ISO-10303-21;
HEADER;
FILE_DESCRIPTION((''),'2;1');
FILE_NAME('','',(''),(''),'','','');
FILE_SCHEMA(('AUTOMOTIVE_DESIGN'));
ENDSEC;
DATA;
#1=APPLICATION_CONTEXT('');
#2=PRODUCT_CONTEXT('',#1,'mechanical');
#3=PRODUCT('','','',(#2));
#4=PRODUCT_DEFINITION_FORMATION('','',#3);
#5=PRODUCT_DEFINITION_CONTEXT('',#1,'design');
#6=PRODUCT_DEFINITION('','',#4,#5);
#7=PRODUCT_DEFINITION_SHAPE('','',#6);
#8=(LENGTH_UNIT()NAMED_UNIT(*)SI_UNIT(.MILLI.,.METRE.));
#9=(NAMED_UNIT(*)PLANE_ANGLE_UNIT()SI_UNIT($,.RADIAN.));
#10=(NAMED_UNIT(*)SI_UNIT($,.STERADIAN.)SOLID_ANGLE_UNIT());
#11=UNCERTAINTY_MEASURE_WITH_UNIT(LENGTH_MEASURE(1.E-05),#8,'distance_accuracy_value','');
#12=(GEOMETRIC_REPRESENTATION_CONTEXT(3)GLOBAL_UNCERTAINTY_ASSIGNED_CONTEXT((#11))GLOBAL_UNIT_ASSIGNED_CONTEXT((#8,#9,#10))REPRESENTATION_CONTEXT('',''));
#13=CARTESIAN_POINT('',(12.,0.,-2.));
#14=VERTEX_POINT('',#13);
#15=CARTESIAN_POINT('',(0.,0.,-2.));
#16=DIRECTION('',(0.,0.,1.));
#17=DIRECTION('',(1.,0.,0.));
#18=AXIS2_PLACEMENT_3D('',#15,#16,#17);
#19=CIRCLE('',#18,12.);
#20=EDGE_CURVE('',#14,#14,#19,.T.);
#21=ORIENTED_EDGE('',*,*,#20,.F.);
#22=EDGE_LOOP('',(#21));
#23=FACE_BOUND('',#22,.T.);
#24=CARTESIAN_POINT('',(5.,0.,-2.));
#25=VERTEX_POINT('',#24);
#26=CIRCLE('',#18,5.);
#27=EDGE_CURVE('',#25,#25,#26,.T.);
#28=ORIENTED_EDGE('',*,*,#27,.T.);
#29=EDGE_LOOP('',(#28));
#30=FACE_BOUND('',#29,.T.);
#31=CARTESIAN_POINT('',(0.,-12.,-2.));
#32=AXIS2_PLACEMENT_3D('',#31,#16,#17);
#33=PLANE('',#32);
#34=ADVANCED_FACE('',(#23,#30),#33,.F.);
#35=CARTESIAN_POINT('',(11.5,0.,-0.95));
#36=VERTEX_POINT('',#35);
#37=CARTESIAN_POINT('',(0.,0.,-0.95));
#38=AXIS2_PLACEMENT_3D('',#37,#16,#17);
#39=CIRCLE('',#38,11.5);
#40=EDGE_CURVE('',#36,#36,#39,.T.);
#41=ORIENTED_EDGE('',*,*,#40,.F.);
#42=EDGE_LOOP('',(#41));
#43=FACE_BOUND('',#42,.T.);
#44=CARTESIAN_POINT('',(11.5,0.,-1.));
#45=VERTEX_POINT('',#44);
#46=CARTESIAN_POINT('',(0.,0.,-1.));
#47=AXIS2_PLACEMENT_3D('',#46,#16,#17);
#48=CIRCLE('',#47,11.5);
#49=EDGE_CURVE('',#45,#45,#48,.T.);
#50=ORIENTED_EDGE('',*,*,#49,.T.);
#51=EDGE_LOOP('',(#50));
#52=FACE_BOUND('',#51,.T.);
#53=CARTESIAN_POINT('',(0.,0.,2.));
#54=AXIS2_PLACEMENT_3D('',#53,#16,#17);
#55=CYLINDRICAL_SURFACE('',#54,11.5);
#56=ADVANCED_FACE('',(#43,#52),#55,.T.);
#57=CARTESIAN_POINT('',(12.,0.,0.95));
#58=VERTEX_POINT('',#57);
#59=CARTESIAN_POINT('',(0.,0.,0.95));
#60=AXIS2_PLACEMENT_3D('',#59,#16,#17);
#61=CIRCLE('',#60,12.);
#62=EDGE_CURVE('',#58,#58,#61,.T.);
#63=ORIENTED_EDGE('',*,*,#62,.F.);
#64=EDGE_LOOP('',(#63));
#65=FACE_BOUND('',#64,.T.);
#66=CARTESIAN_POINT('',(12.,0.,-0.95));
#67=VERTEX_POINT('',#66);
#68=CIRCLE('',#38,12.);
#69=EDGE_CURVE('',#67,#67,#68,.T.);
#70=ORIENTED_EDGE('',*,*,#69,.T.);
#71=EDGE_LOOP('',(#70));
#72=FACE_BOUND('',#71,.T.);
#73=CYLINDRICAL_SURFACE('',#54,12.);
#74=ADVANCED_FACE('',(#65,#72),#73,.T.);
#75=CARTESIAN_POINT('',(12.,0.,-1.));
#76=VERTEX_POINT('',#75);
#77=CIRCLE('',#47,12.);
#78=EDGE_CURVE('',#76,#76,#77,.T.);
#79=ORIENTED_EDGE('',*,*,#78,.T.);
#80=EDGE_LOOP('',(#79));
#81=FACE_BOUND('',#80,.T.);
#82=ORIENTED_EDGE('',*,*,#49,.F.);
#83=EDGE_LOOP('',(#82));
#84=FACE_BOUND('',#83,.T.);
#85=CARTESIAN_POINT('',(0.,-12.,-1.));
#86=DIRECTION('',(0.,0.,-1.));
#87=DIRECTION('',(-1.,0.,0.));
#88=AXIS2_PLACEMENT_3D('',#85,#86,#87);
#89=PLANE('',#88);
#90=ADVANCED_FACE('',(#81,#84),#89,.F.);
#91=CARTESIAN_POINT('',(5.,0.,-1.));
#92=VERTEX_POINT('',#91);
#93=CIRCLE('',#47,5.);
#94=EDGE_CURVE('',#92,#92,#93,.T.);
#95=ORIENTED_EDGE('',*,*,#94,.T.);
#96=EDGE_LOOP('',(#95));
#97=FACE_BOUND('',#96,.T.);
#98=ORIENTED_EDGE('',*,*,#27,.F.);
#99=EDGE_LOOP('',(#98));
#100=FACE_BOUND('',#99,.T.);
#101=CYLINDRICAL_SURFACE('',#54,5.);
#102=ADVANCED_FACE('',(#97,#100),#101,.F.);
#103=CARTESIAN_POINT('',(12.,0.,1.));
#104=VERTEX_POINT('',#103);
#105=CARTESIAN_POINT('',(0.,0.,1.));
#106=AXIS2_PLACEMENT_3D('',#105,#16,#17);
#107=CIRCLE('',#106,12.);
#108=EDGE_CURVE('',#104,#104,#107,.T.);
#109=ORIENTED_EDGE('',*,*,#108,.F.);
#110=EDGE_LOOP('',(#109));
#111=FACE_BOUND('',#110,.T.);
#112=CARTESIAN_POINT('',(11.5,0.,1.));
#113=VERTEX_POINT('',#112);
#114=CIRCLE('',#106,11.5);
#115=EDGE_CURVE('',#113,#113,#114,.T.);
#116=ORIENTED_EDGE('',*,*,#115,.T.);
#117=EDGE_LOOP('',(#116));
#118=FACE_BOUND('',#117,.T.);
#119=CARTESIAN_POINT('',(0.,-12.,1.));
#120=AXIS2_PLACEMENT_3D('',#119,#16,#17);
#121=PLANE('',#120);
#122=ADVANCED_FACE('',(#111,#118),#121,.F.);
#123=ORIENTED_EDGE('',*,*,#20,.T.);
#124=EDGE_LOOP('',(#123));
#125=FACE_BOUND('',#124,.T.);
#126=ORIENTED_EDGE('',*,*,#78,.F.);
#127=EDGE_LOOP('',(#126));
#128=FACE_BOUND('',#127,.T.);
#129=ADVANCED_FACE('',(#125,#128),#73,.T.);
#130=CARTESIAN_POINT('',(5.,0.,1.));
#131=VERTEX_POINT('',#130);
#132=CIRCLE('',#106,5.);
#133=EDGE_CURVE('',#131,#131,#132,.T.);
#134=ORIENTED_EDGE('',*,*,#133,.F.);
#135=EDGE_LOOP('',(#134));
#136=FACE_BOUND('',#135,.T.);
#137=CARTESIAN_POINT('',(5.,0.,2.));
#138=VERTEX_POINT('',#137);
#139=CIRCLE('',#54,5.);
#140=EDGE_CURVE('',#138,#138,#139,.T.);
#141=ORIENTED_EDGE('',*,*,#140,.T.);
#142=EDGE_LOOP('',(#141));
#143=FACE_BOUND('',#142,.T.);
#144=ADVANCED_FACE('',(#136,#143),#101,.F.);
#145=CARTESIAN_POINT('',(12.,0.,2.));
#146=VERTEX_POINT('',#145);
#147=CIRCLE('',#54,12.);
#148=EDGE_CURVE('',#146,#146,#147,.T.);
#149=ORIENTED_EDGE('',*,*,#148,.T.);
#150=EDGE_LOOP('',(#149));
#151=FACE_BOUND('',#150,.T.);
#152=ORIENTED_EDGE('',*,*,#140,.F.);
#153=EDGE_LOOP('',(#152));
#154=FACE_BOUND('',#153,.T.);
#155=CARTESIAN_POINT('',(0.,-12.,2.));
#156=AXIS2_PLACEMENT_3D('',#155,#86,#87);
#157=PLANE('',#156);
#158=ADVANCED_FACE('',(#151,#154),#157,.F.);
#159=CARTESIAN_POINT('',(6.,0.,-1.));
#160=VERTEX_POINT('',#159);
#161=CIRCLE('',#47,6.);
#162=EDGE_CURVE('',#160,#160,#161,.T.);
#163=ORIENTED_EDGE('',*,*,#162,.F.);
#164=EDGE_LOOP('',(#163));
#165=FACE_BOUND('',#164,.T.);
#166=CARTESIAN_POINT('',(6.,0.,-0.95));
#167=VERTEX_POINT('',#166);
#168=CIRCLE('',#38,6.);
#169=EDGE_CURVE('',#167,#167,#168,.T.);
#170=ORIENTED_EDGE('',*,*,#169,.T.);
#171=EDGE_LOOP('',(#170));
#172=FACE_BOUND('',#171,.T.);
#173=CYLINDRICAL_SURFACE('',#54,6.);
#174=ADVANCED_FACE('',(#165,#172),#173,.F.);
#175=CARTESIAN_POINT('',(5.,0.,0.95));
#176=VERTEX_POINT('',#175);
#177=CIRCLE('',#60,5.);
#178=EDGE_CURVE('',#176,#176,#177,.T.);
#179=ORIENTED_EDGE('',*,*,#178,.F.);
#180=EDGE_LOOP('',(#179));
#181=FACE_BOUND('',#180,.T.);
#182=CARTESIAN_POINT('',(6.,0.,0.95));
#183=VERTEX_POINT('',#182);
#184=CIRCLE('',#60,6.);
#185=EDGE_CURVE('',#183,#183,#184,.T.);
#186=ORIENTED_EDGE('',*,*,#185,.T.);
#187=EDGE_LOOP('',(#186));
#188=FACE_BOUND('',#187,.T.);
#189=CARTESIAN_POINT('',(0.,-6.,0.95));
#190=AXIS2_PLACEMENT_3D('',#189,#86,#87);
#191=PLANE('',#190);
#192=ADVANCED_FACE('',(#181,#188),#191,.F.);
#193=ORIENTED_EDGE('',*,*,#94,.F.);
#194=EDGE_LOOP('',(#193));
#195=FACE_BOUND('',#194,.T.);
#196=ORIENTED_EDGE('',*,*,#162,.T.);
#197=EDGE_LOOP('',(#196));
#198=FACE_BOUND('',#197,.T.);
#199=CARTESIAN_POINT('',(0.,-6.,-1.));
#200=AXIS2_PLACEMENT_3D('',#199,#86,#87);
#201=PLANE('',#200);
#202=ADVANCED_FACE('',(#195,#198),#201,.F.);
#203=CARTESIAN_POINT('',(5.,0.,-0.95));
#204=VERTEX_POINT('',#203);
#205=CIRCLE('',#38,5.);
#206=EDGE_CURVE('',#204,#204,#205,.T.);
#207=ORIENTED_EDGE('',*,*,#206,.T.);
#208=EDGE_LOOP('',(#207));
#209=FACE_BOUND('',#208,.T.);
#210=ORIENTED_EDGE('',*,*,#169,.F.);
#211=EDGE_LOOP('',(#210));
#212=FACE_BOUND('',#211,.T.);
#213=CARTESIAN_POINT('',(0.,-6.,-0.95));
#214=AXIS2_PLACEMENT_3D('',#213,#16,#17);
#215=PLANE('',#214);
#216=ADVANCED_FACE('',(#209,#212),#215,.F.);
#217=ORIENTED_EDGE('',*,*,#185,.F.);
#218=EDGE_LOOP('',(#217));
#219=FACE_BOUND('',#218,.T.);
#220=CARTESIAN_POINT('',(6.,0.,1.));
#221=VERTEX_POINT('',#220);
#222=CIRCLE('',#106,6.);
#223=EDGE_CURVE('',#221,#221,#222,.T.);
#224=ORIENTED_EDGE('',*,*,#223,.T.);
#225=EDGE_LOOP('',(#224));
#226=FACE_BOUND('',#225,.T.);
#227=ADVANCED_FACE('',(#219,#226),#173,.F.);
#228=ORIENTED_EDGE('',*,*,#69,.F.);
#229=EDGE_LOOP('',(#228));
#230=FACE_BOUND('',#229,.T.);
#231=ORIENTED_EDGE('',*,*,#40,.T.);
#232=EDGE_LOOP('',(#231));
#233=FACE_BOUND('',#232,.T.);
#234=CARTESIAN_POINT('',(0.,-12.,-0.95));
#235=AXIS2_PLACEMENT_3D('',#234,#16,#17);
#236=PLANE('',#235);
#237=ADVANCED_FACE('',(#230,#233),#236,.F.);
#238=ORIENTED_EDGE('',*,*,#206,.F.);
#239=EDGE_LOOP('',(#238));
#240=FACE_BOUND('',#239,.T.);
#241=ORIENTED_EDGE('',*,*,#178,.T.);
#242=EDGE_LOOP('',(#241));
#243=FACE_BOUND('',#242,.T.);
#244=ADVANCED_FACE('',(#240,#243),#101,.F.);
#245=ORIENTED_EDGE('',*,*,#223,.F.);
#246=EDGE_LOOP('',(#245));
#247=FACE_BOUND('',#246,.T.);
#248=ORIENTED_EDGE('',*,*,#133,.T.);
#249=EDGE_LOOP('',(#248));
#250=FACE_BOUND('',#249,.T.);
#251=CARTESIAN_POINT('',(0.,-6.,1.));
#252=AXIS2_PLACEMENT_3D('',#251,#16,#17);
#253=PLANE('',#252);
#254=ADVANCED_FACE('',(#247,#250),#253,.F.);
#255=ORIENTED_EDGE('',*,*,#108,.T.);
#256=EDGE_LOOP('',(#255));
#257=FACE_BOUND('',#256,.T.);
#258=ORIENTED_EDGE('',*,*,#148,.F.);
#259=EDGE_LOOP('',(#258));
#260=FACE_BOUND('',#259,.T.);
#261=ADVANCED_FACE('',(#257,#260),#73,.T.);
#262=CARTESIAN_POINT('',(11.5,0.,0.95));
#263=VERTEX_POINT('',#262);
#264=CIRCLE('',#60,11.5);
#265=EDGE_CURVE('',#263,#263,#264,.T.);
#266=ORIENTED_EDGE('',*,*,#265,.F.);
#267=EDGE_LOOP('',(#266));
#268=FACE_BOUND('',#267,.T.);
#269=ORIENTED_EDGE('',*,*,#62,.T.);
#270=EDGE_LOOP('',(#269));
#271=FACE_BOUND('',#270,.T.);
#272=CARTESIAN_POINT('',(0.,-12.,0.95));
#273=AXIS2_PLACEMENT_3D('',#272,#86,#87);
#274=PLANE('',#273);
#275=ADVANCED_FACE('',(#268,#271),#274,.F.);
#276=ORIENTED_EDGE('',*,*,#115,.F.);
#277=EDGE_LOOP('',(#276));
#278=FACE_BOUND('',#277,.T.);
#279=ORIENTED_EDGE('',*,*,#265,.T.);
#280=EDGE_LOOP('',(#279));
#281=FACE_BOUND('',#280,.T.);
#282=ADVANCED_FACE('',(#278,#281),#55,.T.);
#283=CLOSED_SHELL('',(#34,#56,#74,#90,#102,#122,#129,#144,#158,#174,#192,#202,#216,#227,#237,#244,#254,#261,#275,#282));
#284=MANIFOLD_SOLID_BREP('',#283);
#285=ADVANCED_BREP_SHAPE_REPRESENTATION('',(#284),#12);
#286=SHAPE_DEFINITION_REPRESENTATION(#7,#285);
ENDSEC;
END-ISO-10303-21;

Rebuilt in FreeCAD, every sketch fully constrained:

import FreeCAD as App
import Part
import Sketcher
Q = App.Units.Quantity

doc = App.newDocument("Part")
params = doc.addObject("Spreadsheet::Sheet", "Params")
for row, (alias, value) in enumerate([
    ("sketch1_width", "7 mm"),
    ("sketch1_width2", "1 mm"),
    ("sketch1_width3", "0.5 mm"),
    ("sketch1_height", "1.9 mm"),
    ("revolution_angle", "360 deg"),
], start=1):
    params.set(f"A{row}", alias)
    params.set(f"B{row}", "=" + value)
    params.setAlias(f"B{row}", alias)

body = doc.addObject("PartDesign::Body", "Body")

# Sketch on YZ plane
sketch1 = doc.addObject("Sketcher::SketchObject", "Sketch")
body.addObject(sketch1)
sketch1.AttachmentSupport = (doc.YZ_Plane, [""])
sketch1.MapMode = "FlatFace"
sketch1.addGeometry([
    Part.LineSegment(App.Vector(12, -2, 0), App.Vector(12, -1, 0)),  # 0
    Part.LineSegment(App.Vector(12, -1, 0), App.Vector(11.5, -1, 0)),  # 1
    Part.LineSegment(App.Vector(11.5, -1, 0), App.Vector(11.5, -0.95, 0)),  # 2
    Part.LineSegment(App.Vector(11.5, -0.95, 0), App.Vector(12, -0.95, 0)),  # 3
    Part.LineSegment(App.Vector(12, -0.95, 0), App.Vector(12, 0.95, 0)),  # 4
    Part.LineSegment(App.Vector(12, 0.95, 0), App.Vector(11.5, 0.95, 0)),  # 5
    Part.LineSegment(App.Vector(11.5, 0.95, 0), App.Vector(11.5, 1, 0)),  # 6
    Part.LineSegment(App.Vector(11.5, 1, 0), App.Vector(12, 1, 0)),  # 7
    Part.LineSegment(App.Vector(12, 1, 0), App.Vector(12, 2, 0)),  # 8
    Part.LineSegment(App.Vector(12, 2, 0), App.Vector(5, 2, 0)),  # 9
    Part.LineSegment(App.Vector(5, 2, 0), App.Vector(5, 1, 0)),  # 10
    Part.LineSegment(App.Vector(5, 1, 0), App.Vector(6, 1, 0)),  # 11
    Part.LineSegment(App.Vector(6, 1, 0), App.Vector(6, 0.95, 0)),  # 12
    Part.LineSegment(App.Vector(6, 0.95, 0), App.Vector(5, 0.95, 0)),  # 13
    Part.LineSegment(App.Vector(5, 0.95, 0), App.Vector(5, -0.95, 0)),  # 14
    Part.LineSegment(App.Vector(5, -0.95, 0), App.Vector(6, -0.95, 0)),  # 15
    Part.LineSegment(App.Vector(6, -0.95, 0), App.Vector(6, -1, 0)),  # 16
    Part.LineSegment(App.Vector(6, -1, 0), App.Vector(5, -1, 0)),  # 17
    Part.LineSegment(App.Vector(5, -1, 0), App.Vector(5, -2, 0)),  # 18
    Part.LineSegment(App.Vector(5, -2, 0), App.Vector(12, -2, 0)),  # 19
], False)
sketch1.addConstraint([
    Sketcher.Constraint("Coincident", 0, 2, 1, 1),
    Sketcher.Constraint("Coincident", 1, 2, 2, 1),
    Sketcher.Constraint("Coincident", 2, 2, 3, 1),
    Sketcher.Constraint("Coincident", 3, 2, 4, 1),
    Sketcher.Constraint("Coincident", 4, 2, 5, 1),
    Sketcher.Constraint("Coincident", 5, 2, 6, 1),
    Sketcher.Constraint("Coincident", 6, 2, 7, 1),
    Sketcher.Constraint("Coincident", 7, 2, 8, 1),
    Sketcher.Constraint("Coincident", 8, 2, 9, 1),
    Sketcher.Constraint("Coincident", 9, 2, 10, 1),
    Sketcher.Constraint("Coincident", 10, 2, 11, 1),
    Sketcher.Constraint("Coincident", 11, 2, 12, 1),
    Sketcher.Constraint("Coincident", 12, 2, 13, 1),
    Sketcher.Constraint("Coincident", 13, 2, 14, 1),
    Sketcher.Constraint("Coincident", 14, 2, 15, 1),
    Sketcher.Constraint("Coincident", 15, 2, 16, 1),
    Sketcher.Constraint("Coincident", 16, 2, 17, 1),
    Sketcher.Constraint("Coincident", 17, 2, 18, 1),
    Sketcher.Constraint("Coincident", 18, 2, 19, 1),
    Sketcher.Constraint("Coincident", 19, 2, 0, 1),
    Sketcher.Constraint("Vertical", 0),
    Sketcher.Constraint("Horizontal", 1),
    Sketcher.Constraint("Vertical", 2),
    Sketcher.Constraint("Horizontal", 3),
    Sketcher.Constraint("Vertical", 4),
    Sketcher.Constraint("Horizontal", 5),
    Sketcher.Constraint("Vertical", 6),
    Sketcher.Constraint("Horizontal", 7),
    Sketcher.Constraint("Vertical", 8),
    Sketcher.Constraint("Horizontal", 9),
    Sketcher.Constraint("Vertical", 10),
    Sketcher.Constraint("Horizontal", 11),
    Sketcher.Constraint("Vertical", 12),
    Sketcher.Constraint("Horizontal", 13),
    Sketcher.Constraint("Vertical", 14),
    Sketcher.Constraint("Horizontal", 15),
    Sketcher.Constraint("Vertical", 16),
    Sketcher.Constraint("Horizontal", 17),
    Sketcher.Constraint("Vertical", 18),
    Sketcher.Constraint("Horizontal", 19),
    Sketcher.Constraint("Symmetric", 2, 2, 5, 2, -1),
    Sketcher.Constraint("Symmetric", 0, 2, 7, 2, -1),
    Sketcher.Constraint("Symmetric", 12, 2, 15, 2, -1),
    Sketcher.Constraint("Symmetric", 10, 2, 17, 2, -1),
    Sketcher.Constraint("Horizontal", 7, 2, 10, 2),
    Sketcher.Constraint("Horizontal", 5, 2, 12, 2),
    Sketcher.Constraint("Vertical", 0, 2, 3, 2),
    Sketcher.Constraint("Vertical", 10, 2, 13, 2),
    Sketcher.Constraint("Equal", 17, 0),
    Sketcher.Constraint("Equal", 0, 8),
    Sketcher.Constraint("DistanceX", 9, 2, 9, 1, Q("7 mm")),
    Sketcher.Constraint("DistanceX", 11, 1, 11, 2, Q("1 mm")),
    Sketcher.Constraint("DistanceX", 1, 2, 1, 1, Q("0.5 mm")),
    Sketcher.Constraint("DistanceY", 4, 1, 4, 2, Q("1.9 mm")),
    Sketcher.Constraint("DistanceX", -1, 1, 0, 2, Q("12 mm")),
    Sketcher.Constraint("DistanceY", 0, 2, -1, 1, Q("1 mm")),
])
sketch1.setExpression("Constraints[50]", "Params.sketch1_width")
sketch1.setExpression("Constraints[51]", "Params.sketch1_width2")
sketch1.setExpression("Constraints[52]", "Params.sketch1_width3")
sketch1.setExpression("Constraints[53]", "Params.sketch1_height")
revolution = doc.addObject("PartDesign::Revolution", "Revolution")
body.addObject(revolution)
revolution.Profile = sketch1
revolution.ReferenceAxis = (sketch1, ["V_Axis"])
revolution.setExpression("Angle", "Params.revolution_angle")

doc.recompute()
